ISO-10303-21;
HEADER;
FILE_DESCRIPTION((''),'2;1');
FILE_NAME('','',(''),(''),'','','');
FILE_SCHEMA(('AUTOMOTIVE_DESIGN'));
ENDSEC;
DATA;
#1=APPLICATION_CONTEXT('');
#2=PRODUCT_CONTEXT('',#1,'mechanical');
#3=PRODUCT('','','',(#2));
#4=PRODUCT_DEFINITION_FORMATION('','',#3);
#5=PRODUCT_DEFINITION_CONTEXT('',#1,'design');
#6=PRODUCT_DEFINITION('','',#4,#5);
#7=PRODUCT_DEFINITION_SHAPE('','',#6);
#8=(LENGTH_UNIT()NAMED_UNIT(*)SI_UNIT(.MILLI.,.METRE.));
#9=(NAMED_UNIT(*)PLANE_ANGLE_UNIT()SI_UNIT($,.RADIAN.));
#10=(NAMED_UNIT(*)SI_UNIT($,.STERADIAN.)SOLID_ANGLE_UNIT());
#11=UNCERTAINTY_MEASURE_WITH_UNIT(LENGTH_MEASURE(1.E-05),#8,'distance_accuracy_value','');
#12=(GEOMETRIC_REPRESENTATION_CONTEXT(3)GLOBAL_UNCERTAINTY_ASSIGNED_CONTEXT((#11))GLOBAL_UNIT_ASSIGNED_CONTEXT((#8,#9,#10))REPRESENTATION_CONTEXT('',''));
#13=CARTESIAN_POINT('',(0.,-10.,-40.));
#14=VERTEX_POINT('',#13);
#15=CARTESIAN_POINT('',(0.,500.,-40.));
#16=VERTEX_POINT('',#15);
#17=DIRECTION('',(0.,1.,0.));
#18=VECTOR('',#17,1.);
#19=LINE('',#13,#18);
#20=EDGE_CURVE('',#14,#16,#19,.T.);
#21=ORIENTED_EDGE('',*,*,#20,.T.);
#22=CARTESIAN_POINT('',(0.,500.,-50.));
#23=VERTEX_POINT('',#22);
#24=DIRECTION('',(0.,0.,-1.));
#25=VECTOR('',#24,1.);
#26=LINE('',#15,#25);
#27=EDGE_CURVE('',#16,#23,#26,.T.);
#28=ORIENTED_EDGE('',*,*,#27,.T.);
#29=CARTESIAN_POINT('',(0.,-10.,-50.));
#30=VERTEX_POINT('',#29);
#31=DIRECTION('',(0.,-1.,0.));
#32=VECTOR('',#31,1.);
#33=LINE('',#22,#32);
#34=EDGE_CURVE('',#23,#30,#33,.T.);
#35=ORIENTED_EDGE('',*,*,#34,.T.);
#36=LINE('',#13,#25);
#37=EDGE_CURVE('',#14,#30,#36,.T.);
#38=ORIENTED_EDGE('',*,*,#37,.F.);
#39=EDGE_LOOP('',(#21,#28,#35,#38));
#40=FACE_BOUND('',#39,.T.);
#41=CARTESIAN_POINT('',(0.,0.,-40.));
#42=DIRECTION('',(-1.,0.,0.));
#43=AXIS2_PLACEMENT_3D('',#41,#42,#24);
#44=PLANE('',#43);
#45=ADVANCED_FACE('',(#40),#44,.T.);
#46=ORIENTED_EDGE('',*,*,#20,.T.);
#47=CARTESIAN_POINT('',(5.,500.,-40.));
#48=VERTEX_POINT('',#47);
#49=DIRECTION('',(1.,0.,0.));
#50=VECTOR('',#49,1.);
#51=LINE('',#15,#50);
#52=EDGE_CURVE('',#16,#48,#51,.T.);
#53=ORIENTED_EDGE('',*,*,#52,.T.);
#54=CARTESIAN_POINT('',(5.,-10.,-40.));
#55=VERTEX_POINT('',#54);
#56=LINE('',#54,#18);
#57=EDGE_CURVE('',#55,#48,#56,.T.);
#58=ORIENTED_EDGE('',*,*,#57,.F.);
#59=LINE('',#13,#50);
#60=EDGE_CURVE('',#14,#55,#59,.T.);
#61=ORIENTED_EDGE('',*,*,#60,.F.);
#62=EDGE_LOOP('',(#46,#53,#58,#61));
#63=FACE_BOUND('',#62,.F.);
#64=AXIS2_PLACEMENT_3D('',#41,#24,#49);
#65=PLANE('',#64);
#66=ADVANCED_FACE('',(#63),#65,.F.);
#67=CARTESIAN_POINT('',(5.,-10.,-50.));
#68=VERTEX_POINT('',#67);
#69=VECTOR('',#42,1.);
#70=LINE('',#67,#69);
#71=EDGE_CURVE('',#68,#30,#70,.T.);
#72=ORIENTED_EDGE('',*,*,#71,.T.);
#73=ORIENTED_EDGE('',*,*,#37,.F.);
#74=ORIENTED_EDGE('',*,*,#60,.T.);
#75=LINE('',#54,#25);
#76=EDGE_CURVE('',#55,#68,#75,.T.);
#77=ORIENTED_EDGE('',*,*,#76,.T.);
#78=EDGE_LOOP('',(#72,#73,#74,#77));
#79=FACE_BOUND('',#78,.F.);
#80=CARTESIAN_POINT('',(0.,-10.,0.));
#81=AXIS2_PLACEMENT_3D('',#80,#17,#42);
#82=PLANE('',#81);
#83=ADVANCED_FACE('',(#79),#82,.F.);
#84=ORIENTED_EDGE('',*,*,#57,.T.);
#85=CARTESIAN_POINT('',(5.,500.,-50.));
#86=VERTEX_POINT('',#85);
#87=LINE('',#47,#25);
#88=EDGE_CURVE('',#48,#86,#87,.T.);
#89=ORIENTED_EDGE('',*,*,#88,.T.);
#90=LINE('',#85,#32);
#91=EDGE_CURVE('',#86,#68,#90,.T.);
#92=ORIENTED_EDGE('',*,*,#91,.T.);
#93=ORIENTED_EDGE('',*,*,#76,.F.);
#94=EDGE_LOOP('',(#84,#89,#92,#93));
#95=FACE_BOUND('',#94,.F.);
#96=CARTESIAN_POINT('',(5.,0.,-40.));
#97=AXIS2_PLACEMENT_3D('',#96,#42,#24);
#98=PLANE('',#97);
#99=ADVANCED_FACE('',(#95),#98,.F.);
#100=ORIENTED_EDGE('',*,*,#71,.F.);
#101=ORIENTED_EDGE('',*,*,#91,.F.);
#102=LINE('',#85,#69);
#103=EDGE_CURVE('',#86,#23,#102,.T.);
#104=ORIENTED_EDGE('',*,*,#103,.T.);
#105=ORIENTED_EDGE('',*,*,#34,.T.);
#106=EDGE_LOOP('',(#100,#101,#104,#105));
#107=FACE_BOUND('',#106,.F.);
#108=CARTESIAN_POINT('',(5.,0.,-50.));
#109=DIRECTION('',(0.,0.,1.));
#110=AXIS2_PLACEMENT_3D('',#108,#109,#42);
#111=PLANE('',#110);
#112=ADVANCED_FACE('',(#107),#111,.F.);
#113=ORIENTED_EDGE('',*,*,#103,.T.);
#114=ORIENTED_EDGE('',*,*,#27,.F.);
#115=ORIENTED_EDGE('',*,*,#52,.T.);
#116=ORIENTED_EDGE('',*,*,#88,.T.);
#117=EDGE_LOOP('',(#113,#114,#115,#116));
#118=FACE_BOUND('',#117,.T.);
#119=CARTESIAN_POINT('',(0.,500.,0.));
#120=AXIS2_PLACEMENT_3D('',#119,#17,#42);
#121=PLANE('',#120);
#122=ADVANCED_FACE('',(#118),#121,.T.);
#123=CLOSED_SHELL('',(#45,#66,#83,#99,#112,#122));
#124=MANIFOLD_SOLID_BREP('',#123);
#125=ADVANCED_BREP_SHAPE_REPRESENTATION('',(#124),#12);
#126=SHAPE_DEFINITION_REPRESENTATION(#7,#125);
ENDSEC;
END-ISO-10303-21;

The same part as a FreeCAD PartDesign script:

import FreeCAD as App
import Part
import Sketcher

V = App.Vector


def add_polygon(sketch, points):
    """Adds a closed chain of lines whose ends are joined by coincident constraints."""
    first, n = sketch.GeometryCount, len(points)
    for a, b in zip(points, points[1:] + points[:1]):
        sketch.addGeometry(Part.LineSegment(App.Vector(*a, 0), App.Vector(*b, 0)), False)
    for i in range(n):
        sketch.addConstraint(Sketcher.Constraint("Coincident", first + i, 2, first + (i + 1) % n, 1))

doc = App.newDocument("Part")
params = doc.addObject("Spreadsheet::Sheet", "Params")
for row, (alias, value) in enumerate([
    ("sketch1_width", "5 mm"),
    ("sketch1_height", "10 mm"),
    ("pad1_length", "500 mm"),
    ("sketch2_width", "5 mm"),
    ("sketch2_height", "10 mm"),
    ("pad2_length", "10 mm"),
], start=1):
    params.set(f"A{row}", alias)
    params.set(f"B{row}", "=" + value)
    params.setAlias(f"B{row}", alias)

body = doc.addObject("PartDesign::Body", "Body")

sketch1 = body.newObject("Sketcher::SketchObject", "Sketch")
sketch1.AttachmentSupport = (doc.getObject("XZ_Plane"), [""])
sketch1.MapMode = "FlatFace"
add_polygon(sketch1, [(0, -50), (0, -40), (5, -40), (5, -50)])
sketch1.addConstraint([
    Sketcher.Constraint("Vertical", 0),
    Sketcher.Constraint("Horizontal", 1),
    Sketcher.Constraint("Vertical", 2),
    Sketcher.Constraint("Horizontal", 3),
    Sketcher.Constraint("PointOnObject", 0, 2, -2),
    Sketcher.Constraint("DistanceX", 1, 1, 1, 2, 5.0),
    Sketcher.Constraint("DistanceY", 0, 1, 0, 2, 10.0),
    Sketcher.Constraint("DistanceY", 0, 2, -1, 1, 40.0),
])
sketch1.setExpression("Constraints[9]", "Params.sketch1_width")
sketch1.setExpression("Constraints[10]", "Params.sketch1_height")
pad1 = body.newObject("PartDesign::Pad", "Pad")
pad1.Profile = sketch1
pad1.setExpression("Length", "Params.pad1_length")
pad1.Reversed = True

sketch2 = body.newObject("Sketcher::SketchObject", "Sketch001")
sketch2.AttachmentSupport = (doc.getObject("XZ_Plane"), [""])
sketch2.MapMode = "FlatFace"
add_polygon(sketch2, [(0, -50), (0, -40), (5, -40), (5, -50)])
sketch2.addConstraint([
    Sketcher.Constraint("Vertical", 0),
    Sketcher.Constraint("Horizontal", 1),
    Sketcher.Constraint("Vertical", 2),
    Sketcher.Constraint("Horizontal", 3),
    Sketcher.Constraint("PointOnObject", 0, 2, -2),
    Sketcher.Constraint("DistanceX", 1, 1, 1, 2, 5.0),
    Sketcher.Constraint("DistanceY", 0, 1, 0, 2, 10.0),
    Sketcher.Constraint("DistanceY", 0, 2, -1, 1, 40.0),
])
sketch2.setExpression("Constraints[9]", "Params.sketch2_width")
sketch2.setExpression("Constraints[10]", "Params.sketch2_height")
pad2 = body.newObject("PartDesign::Pad", "Pad001")
pad2.Profile = sketch2
pad2.setExpression("Length", "Params.pad2_length")

doc.recompute()
